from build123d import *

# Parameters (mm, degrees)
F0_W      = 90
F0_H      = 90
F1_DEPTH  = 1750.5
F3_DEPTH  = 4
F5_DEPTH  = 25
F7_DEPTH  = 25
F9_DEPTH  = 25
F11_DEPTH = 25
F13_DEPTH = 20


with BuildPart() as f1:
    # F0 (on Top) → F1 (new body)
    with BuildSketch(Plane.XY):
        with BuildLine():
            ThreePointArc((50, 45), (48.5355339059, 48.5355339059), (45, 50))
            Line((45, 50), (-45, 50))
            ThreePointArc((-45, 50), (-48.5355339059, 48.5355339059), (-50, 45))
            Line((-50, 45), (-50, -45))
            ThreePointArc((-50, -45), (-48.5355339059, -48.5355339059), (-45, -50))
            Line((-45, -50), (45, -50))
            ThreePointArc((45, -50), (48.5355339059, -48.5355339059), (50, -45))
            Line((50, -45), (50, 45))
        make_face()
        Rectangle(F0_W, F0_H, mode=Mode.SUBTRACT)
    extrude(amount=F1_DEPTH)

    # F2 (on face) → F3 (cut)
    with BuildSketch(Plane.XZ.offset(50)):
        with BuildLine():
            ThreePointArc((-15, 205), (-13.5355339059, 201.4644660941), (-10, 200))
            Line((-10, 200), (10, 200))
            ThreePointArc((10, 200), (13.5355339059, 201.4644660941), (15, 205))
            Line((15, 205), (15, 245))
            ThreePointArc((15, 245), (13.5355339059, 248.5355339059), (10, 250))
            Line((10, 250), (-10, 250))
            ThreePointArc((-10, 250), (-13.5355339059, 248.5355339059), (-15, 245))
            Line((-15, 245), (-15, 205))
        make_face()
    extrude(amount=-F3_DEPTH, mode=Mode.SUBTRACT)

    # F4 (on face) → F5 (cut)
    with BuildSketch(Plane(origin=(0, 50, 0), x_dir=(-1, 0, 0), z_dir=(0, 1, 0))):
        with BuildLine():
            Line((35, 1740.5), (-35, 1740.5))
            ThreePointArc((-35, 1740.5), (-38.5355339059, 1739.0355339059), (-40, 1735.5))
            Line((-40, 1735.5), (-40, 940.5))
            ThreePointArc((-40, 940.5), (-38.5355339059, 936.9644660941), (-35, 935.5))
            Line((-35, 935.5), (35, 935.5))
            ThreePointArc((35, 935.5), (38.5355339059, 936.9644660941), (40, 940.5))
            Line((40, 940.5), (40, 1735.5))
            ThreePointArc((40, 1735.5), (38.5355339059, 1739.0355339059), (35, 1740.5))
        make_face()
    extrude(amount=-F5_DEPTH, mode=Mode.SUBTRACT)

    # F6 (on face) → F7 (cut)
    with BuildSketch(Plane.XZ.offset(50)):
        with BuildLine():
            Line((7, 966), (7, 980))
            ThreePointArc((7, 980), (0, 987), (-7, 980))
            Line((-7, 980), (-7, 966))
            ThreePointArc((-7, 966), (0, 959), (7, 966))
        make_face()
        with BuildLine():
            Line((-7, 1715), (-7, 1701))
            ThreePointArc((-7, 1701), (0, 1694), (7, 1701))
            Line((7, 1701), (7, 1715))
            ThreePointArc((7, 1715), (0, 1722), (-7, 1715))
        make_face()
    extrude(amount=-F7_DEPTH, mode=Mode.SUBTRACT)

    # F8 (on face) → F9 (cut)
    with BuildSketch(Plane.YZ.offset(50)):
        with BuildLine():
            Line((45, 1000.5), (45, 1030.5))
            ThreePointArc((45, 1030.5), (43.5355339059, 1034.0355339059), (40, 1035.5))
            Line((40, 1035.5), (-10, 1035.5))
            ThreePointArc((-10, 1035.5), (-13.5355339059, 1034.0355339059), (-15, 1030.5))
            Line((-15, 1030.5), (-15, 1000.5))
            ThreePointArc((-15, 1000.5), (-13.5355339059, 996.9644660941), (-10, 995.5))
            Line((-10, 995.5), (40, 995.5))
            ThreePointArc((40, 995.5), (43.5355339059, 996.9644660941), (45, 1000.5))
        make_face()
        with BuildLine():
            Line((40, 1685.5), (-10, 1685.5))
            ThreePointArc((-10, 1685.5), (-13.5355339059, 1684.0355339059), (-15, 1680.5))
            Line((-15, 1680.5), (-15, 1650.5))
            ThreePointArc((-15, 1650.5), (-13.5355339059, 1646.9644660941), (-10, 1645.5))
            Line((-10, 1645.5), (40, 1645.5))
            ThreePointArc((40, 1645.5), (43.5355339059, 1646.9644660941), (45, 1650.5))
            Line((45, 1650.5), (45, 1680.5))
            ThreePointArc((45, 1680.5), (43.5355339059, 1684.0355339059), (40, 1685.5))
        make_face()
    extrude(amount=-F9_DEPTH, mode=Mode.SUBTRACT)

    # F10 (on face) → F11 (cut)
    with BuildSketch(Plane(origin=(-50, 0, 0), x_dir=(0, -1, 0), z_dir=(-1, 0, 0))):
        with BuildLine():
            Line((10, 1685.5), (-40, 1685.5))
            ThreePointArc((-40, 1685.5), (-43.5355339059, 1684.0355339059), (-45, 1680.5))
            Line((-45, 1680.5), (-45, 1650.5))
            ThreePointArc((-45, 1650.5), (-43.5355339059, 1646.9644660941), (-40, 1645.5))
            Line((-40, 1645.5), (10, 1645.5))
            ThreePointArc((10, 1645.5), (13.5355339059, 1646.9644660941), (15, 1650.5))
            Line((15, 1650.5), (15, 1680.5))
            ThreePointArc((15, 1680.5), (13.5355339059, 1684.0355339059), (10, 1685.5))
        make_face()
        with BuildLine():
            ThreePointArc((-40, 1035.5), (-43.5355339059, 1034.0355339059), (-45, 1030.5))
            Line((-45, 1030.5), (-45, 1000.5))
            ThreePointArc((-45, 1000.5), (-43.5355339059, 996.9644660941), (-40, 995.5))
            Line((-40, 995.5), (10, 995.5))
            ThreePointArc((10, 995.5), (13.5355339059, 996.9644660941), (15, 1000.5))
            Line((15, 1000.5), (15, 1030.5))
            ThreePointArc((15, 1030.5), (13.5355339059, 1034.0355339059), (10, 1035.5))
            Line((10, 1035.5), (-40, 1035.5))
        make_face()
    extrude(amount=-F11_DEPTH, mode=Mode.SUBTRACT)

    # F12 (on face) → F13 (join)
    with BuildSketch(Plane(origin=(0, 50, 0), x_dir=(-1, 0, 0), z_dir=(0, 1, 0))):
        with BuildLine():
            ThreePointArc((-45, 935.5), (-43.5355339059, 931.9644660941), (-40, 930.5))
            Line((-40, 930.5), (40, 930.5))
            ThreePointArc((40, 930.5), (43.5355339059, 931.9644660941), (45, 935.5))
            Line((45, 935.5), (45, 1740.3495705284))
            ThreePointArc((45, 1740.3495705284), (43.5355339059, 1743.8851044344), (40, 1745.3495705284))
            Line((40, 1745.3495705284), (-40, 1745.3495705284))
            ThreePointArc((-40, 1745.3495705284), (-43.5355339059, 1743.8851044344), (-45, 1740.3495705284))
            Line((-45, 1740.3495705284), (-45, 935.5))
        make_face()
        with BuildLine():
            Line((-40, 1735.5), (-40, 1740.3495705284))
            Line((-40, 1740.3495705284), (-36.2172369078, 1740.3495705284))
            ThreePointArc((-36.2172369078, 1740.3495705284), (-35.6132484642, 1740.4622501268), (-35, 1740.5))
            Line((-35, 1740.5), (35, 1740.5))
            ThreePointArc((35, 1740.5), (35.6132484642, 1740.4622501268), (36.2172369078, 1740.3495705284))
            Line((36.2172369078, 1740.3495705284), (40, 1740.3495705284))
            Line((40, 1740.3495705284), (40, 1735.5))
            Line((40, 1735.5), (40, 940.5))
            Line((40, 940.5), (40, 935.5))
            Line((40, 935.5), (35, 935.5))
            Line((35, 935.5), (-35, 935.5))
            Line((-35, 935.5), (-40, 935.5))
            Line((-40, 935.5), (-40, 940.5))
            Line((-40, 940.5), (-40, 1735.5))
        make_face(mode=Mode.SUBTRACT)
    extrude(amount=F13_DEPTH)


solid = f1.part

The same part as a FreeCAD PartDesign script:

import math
import FreeCAD as App
import Part
import Sketcher
from FreeCAD import Vector
Q = App.Units.Quantity


def add_polygon(sketch, points):
    """Adds a closed chain of lines whose ends are joined by coincident constraints."""
    first, n = sketch.GeometryCount, len(points)
    for a, b in zip(points, points[1:] + points[:1]):
        sketch.addGeometry(Part.LineSegment(App.Vector(*a, 0), App.Vector(*b, 0)), False)
    for i in range(n):
        sketch.addConstraint(Sketcher.Constraint("Coincident", first + i, 2, first + (i + 1) % n, 1))

doc = App.newDocument("Part")
body = doc.addObject("PartDesign::Body", "Body")

sketch1 = doc.addObject("Sketcher::SketchObject", "Sketch")
body.addObject(sketch1)
sketch1.AttachmentSupport = (doc.XY_Plane, [""])
sketch1.MapMode = "FlatFace"
sketch1.addGeometry(Part.ArcOfCircle(Part.Circle(Vector(45, 45, 0), Vector(0, 0, 1), 5), math.radians(0), math.radians(90)), False)
sketch1.addGeometry(Part.LineSegment(Vector(45, 50, 0), Vector(-45, 50, 0)), False)
sketch1.addGeometry(Part.ArcOfCircle(Part.Circle(Vector(-45, 45, 0), Vector(0, 0, 1), 5), math.radians(90), math.radians(180)), False)
sketch1.addGeometry(Part.LineSegment(Vector(-50, 45, 0), Vector(-50, -45, 0)), False)
sketch1.addGeometry(Part.ArcOfCircle(Part.Circle(Vector(-45, -45, 0), Vector(0, 0, 1), 5), math.radians(180), math.radians(270)), False)
sketch1.addGeometry(Part.LineSegment(Vector(-45, -50, 0), Vector(45, -50, 0)), False)
sketch1.addGeometry(Part.ArcOfCircle(Part.Circle(Vector(45, -45, 0), Vector(0, 0, 1), 5), math.radians(-90), math.radians(0)), False)
sketch1.addGeometry(Part.LineSegment(Vector(50, -45, 0), Vector(50, 45, 0)), False)
add_polygon(sketch1, [(45, -45), (-45, -45), (-45, 45), (45, 45)])
sketch1.addConstraint([
    Sketcher.Constraint("Tangent", 0, 2, 1, 1),
    Sketcher.Constraint("Tangent", 1, 2, 2, 1),
    Sketcher.Constraint("Tangent", 2, 2, 3, 1),
    Sketcher.Constraint("Tangent", 3, 2, 4, 1),
    Sketcher.Constraint("Tangent", 4, 2, 5, 1),
    Sketcher.Constraint("Tangent", 5, 2, 6, 1),
    Sketcher.Constraint("Tangent", 6, 2, 7, 1),
    Sketcher.Constraint("Tangent", 7, 2, 0, 1),
    Sketcher.Constraint("Horizontal", 1),
    Sketcher.Constraint("Vertical", 3),
    Sketcher.Constraint("Horizontal", 5),
    Sketcher.Constraint("Vertical", 7),
    Sketcher.Constraint("Horizontal", 8),
    Sketcher.Constraint("Vertical", 9),
    Sketcher.Constraint("Horizontal", 10),
    Sketcher.Constraint("Vertical", 11),
    Sketcher.Constraint("Coincident", 8, 2, 4, 3),
    Sketcher.Constraint("Coincident", 9, 2, 2, 3),
    Sketcher.Constraint("Coincident", 10, 2, 0, 3),
    Sketcher.Constraint("Equal", 4, 6),
    Sketcher.Constraint("Symmetric", 0, 3, 4, 3, -1, 1),
    Sketcher.Constraint("Equal", 10, 3),
    Sketcher.Constraint("Radius", 0, Q("5 mm")),
    Sketcher.Constraint("DistanceX", 1, 2, 1, 1, Q("90 mm")),
])
pad1 = doc.addObject("PartDesign::Pad", "Pad")
body.addObject(pad1)
pad1.Profile = sketch1
pad1.Length = 1750.5

sketch2 = doc.addObject("Sketcher::SketchObject", "Sketch001")
body.addObject(sketch2)
sketch2.AttachmentSupport = (doc.XZ_Plane, [""])
sketch2.MapMode = "FlatFace"
sketch2.AttachmentOffset = App.Placement(Vector(0, 0, 50), App.Rotation())
sketch2.addGeometry([
    Part.ArcOfCircle(Part.Circle(Vector(-10, 205, 0), Vector(0, 0, 1), 5), math.radians(180), math.radians(270)),
    Part.LineSegment(Vector(-10, 200, 0), Vector(10, 200, 0)),
    Part.ArcOfCircle(Part.Circle(Vector(10, 205, 0), Vector(0, 0, 1), 5), math.radians(-90), math.radians(0)),
    Part.LineSegment(Vector(15, 205, 0), Vector(15, 245, 0)),
    Part.ArcOfCircle(Part.Circle(Vector(10, 245, 0), Vector(0, 0, 1), 5), math.radians(0), math.radians(90)),
    Part.LineSegment(Vector(10, 250, 0), Vector(-10, 250, 0)),
    Part.ArcOfCircle(Part.Circle(Vector(-10, 245, 0), Vector(0, 0, 1), 5), math.radians(90), math.radians(180)),
    Part.LineSegment(Vector(-15, 245, 0), Vector(-15, 205, 0)),
], False)
sketch2.addConstraint([
    Sketcher.Constraint("Tangent", 0, 2, 1, 1),
    Sketcher.Constraint("Tangent", 1, 2, 2, 1),
    Sketcher.Constraint("Tangent", 2, 2, 3, 1),
    Sketcher.Constraint("Tangent", 3, 2, 4, 1),
    Sketcher.Constraint("Tangent", 4, 2, 5, 1),
    Sketcher.Constraint("Tangent", 5, 2, 6, 1),
    Sketcher.Constraint("Tangent", 6, 2, 7, 1),
    Sketcher.Constraint("Tangent", 7, 2, 0, 1),
    Sketcher.Constraint("Horizontal", 1),
    Sketcher.Constraint("Vertical", 3),
    Sketcher.Constraint("Horizontal", 5),
    Sketcher.Constraint("Vertical", 7),
    Sketcher.Constraint("Equal", 0, 2),
    Sketcher.Constraint("Equal", 2, 4),
    Sketcher.Constraint("Equal", 4, 6),
    Sketcher.Constraint("Radius", 0, Q("5 mm")),
    Sketcher.Constraint("DistanceX", 1, 1, 1, 2, Q("20 mm")),
    Sketcher.Constraint("DistanceY", 3, 1, 3, 2, Q("40 mm")),
    Sketcher.Constraint("DistanceX", 0, 3, -1, 1, Q("10 mm")),
    Sketcher.Constraint("DistanceY", -1, 1, 0, 3, Q("205 mm")),
])
pocket1 = doc.addObject("PartDesign::Pocket", "Pocket")
body.addObject(pocket1)
pocket1.Profile = sketch2
pocket1.Length = 4

sketch3 = doc.addObject("Sketcher::SketchObject", "Sketch002")
body.addObject(sketch3)
sketch3.AttachmentSupport = (doc.XZ_Plane, [""])
sketch3.MapMode = "FlatFace"
sketch3.AttachmentOffset = App.Placement(Vector(0, 0, -50), App.Rotation())
sketch3.addGeometry([
    Part.LineSegment(Vector(-35, 1740, 0), Vector(35, 1740, 0)),
    Part.ArcOfCircle(Part.Circle(Vector(35, 1736, 0), Vector(0, 0, 1), 5), math.radians(0), math.radians(90)),
    Part.LineSegment(Vector(40, 1736, 0), Vector(40, 940, 0)),
    Part.ArcOfCircle(Part.Circle(Vector(35, 940, 0), Vector(0, 0, 1), 5), math.radians(-90), math.radians(0)),
    Part.LineSegment(Vector(35, 936, 0), Vector(-35, 936, 0)),
    Part.ArcOfCircle(Part.Circle(Vector(-35, 940, 0), Vector(0, 0, 1), 5), math.radians(180), math.radians(270)),
    Part.LineSegment(Vector(-40, 940, 0), Vector(-40, 1736, 0)),
    Part.ArcOfCircle(Part.Circle(Vector(-35, 1736, 0), Vector(0, 0, 1), 5), math.radians(90), math.radians(180)),
], False)
sketch3.addConstraint([
    Sketcher.Constraint("Tangent", 0, 2, 1, 2),
    Sketcher.Constraint("Tangent", 1, 1, 2, 1),
    Sketcher.Constraint("Tangent", 2, 2, 3, 2),
    Sketcher.Constraint("Tangent", 3, 1, 4, 1),
    Sketcher.Constraint("Tangent", 4, 2, 5, 2),
    Sketcher.Constraint("Tangent", 5, 1, 6, 1),
    Sketcher.Constraint("Tangent", 6, 2, 7, 2),
    Sketcher.Constraint("Tangent", 7, 1, 0, 1),
    Sketcher.Constraint("Horizontal", 0),
    Sketcher.Constraint("Vertical", 2),
    Sketcher.Constraint("Horizontal", 4),
    Sketcher.Constraint("Vertical", 6),
    Sketcher.Constraint("Equal", 1, 3),
    Sketcher.Constraint("Equal", 3, 5),
    Sketcher.Constraint("Equal", 5, 7),
    Sketcher.Constraint("Radius", 1, Q("5 mm")),
    Sketcher.Constraint("DistanceX", 0, 1, 0, 2, Q("70 mm")),
    Sketcher.Constraint("DistanceY", 2, 2, 2, 1, Q("795 mm")),
    Sketcher.Constraint("DistanceX", -1, 1, 1, 3, Q("35 mm")),
    Sketcher.Constraint("DistanceY", -1, 1, 1, 3, Q("1735.5 mm")),
])
pocket2 = doc.addObject("PartDesign::Pocket", "Pocket001")
body.addObject(pocket2)
pocket2.Profile = sketch3
pocket2.Length = 25
pocket2.Reversed = True

sketch4 = doc.addObject("Sketcher::SketchObject", "Sketch003")
body.addObject(sketch4)
sketch4.AttachmentSupport = (doc.XZ_Plane, [""])
sketch4.MapMode = "FlatFace"
sketch4.AttachmentOffset = App.Placement(Vector(0, 0, 50), App.Rotation())
sketch4.addGeometry([
    Part.LineSegment(Vector(7, 966, 0), Vector(7, 980, 0)),
    Part.ArcOfCircle(Part.Circle(Vector(0, 980, 0), Vector(0, 0, 1), 7), math.radians(0), math.radians(180)),
    Part.LineSegment(Vector(-7, 980, 0), Vector(-7, 966, 0)),
    Part.ArcOfCircle(Part.Circle(Vector(0, 966, 0), Vector(0, 0, 1), 7), math.radians(180), math.radians(360)),
    Part.LineSegment(Vector(-7, 1715, 0), Vector(-7, 1701, 0)),
    Part.ArcOfCircle(Part.Circle(Vector(0, 1701, 0), Vector(0, 0, 1), 7), math.radians(180), math.radians(360)),
    Part.LineSegment(Vector(7, 1701, 0), Vector(7, 1715, 0)),
    Part.ArcOfCircle(Part.Circle(Vector(0, 1715, 0), Vector(0, 0, 1), 7), math.radians(0), math.radians(180)),
], False)
sketch4.addConstraint([
    Sketcher.Constraint("Tangent", 0, 2, 1, 1),
    Sketcher.Constraint("Tangent", 1, 2, 2, 1),
    Sketcher.Constraint("Tangent", 2, 2, 3, 1),
    Sketcher.Constraint("Tangent", 3, 2, 0, 1),
    Sketcher.Constraint("Tangent", 4, 2, 5, 1),
    Sketcher.Constraint("Tangent", 5, 2, 6, 1),
    Sketcher.Constraint("Tangent", 6, 2, 7, 1),
    Sketcher.Constraint("Tangent", 7, 2, 4, 1),
    Sketcher.Constraint("Vertical", 0),
    Sketcher.Constraint("Vertical", 2),
    Sketcher.Constraint("Vertical", 4),
    Sketcher.Constraint("Vertical", 6),
    Sketcher.Constraint("Equal", 3, 5),
    Sketcher.Constraint("PointOnObject", 1, 3, -2),
    Sketcher.Constraint("PointOnObject", 5, 3, -2),
    Sketcher.Constraint("Equal", 2, 4),
    Sketcher.Constraint("Radius", 1, Q("7 mm")),
    Sketcher.Constraint("DistanceY", 0, 1, 0, 2, Q("14 mm")),
    Sketcher.Constraint("DistanceY", -1, 1, 1, 3, Q("980 mm")),
    Sketcher.Constraint("DistanceY", -1, 1, 5, 3, Q("1701 mm")),
])
pocket3 = doc.addObject("PartDesign::Pocket", "Pocket002")
body.addObject(pocket3)
pocket3.Profile = sketch4
pocket3.Length = 25

sketch5 = doc.addObject("Sketcher::SketchObject", "Sketch004")
body.addObject(sketch5)
sketch5.AttachmentSupport = (doc.YZ_Plane, [""])
sketch5.MapMode = "FlatFace"
sketch5.AttachmentOffset = App.Placement(Vector(0, 0, 50), App.Rotation())
sketch5.addGeometry([
    Part.LineSegment(Vector(45, 1000, 0), Vector(45, 1030, 0)),
    Part.ArcOfCircle(Part.Circle(Vector(40, 1030, 0), Vector(0, 0, 1), 5), math.radians(0), math.radians(90)),
    Part.LineSegment(Vector(40, 1036, 0), Vector(-10, 1036, 0)),
    Part.ArcOfCircle(Part.Circle(Vector(-10, 1030, 0), Vector(0, 0, 1), 5), math.radians(90), math.radians(180)),
    Part.LineSegment(Vector(-15, 1030, 0), Vector(-15, 1000, 0)),
    Part.ArcOfCircle(Part.Circle(Vector(-10, 1000, 0), Vector(0, 0, 1), 5), math.radians(180), math.radians(270)),
    Part.LineSegment(Vector(-10, 996, 0), Vector(40, 996, 0)),
    Part.ArcOfCircle(Part.Circle(Vector(40, 1000, 0), Vector(0, 0, 1), 5), math.radians(-90), math.radians(0)),
    Part.LineSegment(Vector(40, 1686, 0), Vector(-10, 1686, 0)),
    Part.ArcOfCircle(Part.Circle(Vector(-10, 1680, 0), Vector(0, 0, 1), 5), math.radians(90), math.radians(180)),
    Part.LineSegment(Vector(-15, 1680, 0), Vector(-15, 1650, 0)),
    Part.ArcOfCircle(Part.Circle(Vector(-10, 1650, 0), Vector(0, 0, 1), 5), math.radians(180), math.radians(270)),
    Part.LineSegment(Vector(-10, 1646, 0), Vector(40, 1646, 0)),
    Part.ArcOfCircle(Part.Circle(Vector(40, 1650, 0), Vector(0, 0, 1), 5), math.radians(-90), math.radians(0)),
    Part.LineSegment(Vector(45, 1650, 0), Vector(45, 1680, 0)),
    Part.ArcOfCircle(Part.Circle(Vector(40, 1680, 0), Vector(0, 0, 1), 5), math.radians(0), math.radians(90)),
], False)
sketch5.addConstraint([
    Sketcher.Constraint("Tangent", 0, 2, 1, 1),
    Sketcher.Constraint("Tangent", 1, 2, 2, 1),
    Sketcher.Constraint("Tangent", 2, 2, 3, 1),
    Sketcher.Constraint("Tangent", 3, 2, 4, 1),
    Sketcher.Constraint("Tangent", 4, 2, 5, 1),
    Sketcher.Constraint("Tangent", 5, 2, 6, 1),
    Sketcher.Constraint("Tangent", 6, 2, 7, 1),
    Sketcher.Constraint("Tangent", 7, 2, 0, 1),
    Sketcher.Constraint("Tangent", 8, 2, 9, 1),
    Sketcher.Constraint("Tangent", 9, 2, 10, 1),
    Sketcher.Constraint("Tangent", 10, 2, 11, 1),
    Sketcher.Constraint("Tangent", 11, 2, 12, 1),
    Sketcher.Constraint("Tangent", 12, 2, 13, 1),
    Sketcher.Constraint("Tangent", 13, 2, 14, 1),
    Sketcher.Constraint("Tangent", 14, 2, 15, 1),
    Sketcher.Constraint("Tangent", 15, 2, 8, 1),
    Sketcher.Constraint("Vertical", 0),
    Sketcher.Constraint("Horizontal", 2),
    Sketcher.Constraint("Vertical", 4),
    Sketcher.Constraint("Horizontal", 6),
    Sketcher.Constraint("Horizontal", 8),
    Sketcher.Constraint("Vertical", 10),
    Sketcher.Constraint("Horizontal", 12),
    Sketcher.Constraint("Vertical", 14),
    Sketcher.Constraint("Equal", 1, 3),
    Sketcher.Constraint("Equal", 3, 5),
    Sketcher.Constraint("Equal", 5, 7),
    Sketcher.Constraint("Equal", 7, 9),
    Sketcher.Constraint("Equal", 9, 11),
    Sketcher.Constraint("Equal", 11, 13),
    Sketcher.Constraint("Equal", 13, 15),
    Sketcher.Constraint("Vertical", 5, 3, 9, 3),
    Sketcher.Constraint("Vertical", 7, 3, 13, 3),
    Sketcher.Constraint("Equal", 4, 10),
    Sketcher.Constraint("Radius", 1, Q("5 mm")),
    Sketcher.Constraint("DistanceX", 2, 2, 2, 1, Q("50 mm")),
    Sketcher.Constraint("DistanceY", 0, 1, 0, 2, Q("30 mm")),
    Sketcher.Constraint("DistanceX", -1, 1, 1, 3, Q("40 mm")),
    Sketcher.Constraint("DistanceY", 3, 3, 9, 3, Q("650 mm")),
    Sketcher.Constraint("DistanceY", -1, 1, 1, 3, Q("1030.5 mm")),
])
pocket4 = doc.addObject("PartDesign::Pocket", "Pocket003")
body.addObject(pocket4)
pocket4.Profile = sketch5
pocket4.Length = 25

sketch6 = doc.addObject("Sketcher::SketchObject", "Sketch005")
body.addObject(sketch6)
sketch6.AttachmentSupport = (doc.YZ_Plane, [""])
sketch6.MapMode = "FlatFace"
sketch6.AttachmentOffset = App.Placement(Vector(0, 0, -50), App.Rotation())
sketch6.addGeometry([
    Part.LineSegment(Vector(-10, 1686, 0), Vector(40, 1686, 0)),
    Part.ArcOfCircle(Part.Circle(Vector(40, 1680, 0), Vector(0, 0, 1), 5), math.radians(0), math.radians(90)),
    Part.LineSegment(Vector(45, 1680, 0), Vector(45, 1650, 0)),
    Part.ArcOfCircle(Part.Circle(Vector(40, 1650, 0), Vector(0, 0, 1), 5), math.radians(-90), math.radians(0)),
    Part.LineSegment(Vector(40, 1646, 0), Vector(-10, 1646, 0)),
    Part.ArcOfCircle(Part.Circle(Vector(-10, 1650, 0), Vector(0, 0, 1), 5), math.radians(180), math.radians(270)),
    Part.LineSegment(Vector(-15, 1650, 0), Vector(-15, 1680, 0)),
    Part.ArcOfCircle(Part.Circle(Vector(-10, 1680, 0), Vector(0, 0, 1), 5), math.radians(90), math.radians(180)),
    Part.ArcOfCircle(Part.Circle(Vector(40, 1030, 0), Vector(0, 0, 1), 5), math.radians(0), math.radians(90)),
    Part.LineSegment(Vector(45, 1030, 0), Vector(45, 1000, 0)),
    Part.ArcOfCircle(Part.Circle(Vector(40, 1000, 0), Vector(0, 0, 1), 5), math.radians(-90), math.radians(0)),
    Part.LineSegment(Vector(40, 996, 0), Vector(-10, 996, 0)),
    Part.ArcOfCircle(Part.Circle(Vector(-10, 1000, 0), Vector(0, 0, 1), 5), math.radians(180), math.radians(270)),
    Part.LineSegment(Vector(-15, 1000, 0), Vector(-15, 1030, 0)),
    Part.ArcOfCircle(Part.Circle(Vector(-10, 1030, 0), Vector(0, 0, 1), 5), math.radians(90), math.radians(180)),
    Part.LineSegment(Vector(-10, 1036, 0), Vector(40, 1036, 0)),
], False)
sketch6.addConstraint([
    Sketcher.Constraint("Tangent", 0, 2, 1, 2),
    Sketcher.Constraint("Tangent", 1, 1, 2, 1),
    Sketcher.Constraint("Tangent", 2, 2, 3, 2),
    Sketcher.Constraint("Tangent", 3, 1, 4, 1),
    Sketcher.Constraint("Tangent", 4, 2, 5, 2),
    Sketcher.Constraint("Tangent", 5, 1, 6, 1),
    Sketcher.Constraint("Tangent", 6, 2, 7, 2),
    Sketcher.Constraint("Tangent", 7, 1, 0, 1),
    Sketcher.Constraint("Tangent", 8, 1, 9, 1),
    Sketcher.Constraint("Tangent", 9, 2, 10, 2),
    Sketcher.Constraint("Tangent", 10, 1, 11, 1),
    Sketcher.Constraint("Tangent", 11, 2, 12, 2),
    Sketcher.Constraint("Tangent", 12, 1, 13, 1),
    Sketcher.Constraint("Tangent", 13, 2, 14, 2),
    Sketcher.Constraint("Tangent", 14, 1, 15, 1),
    Sketcher.Constraint("Tangent", 15, 2, 8, 2),
    Sketcher.Constraint("Horizontal", 0),
    Sketcher.Constraint("Vertical", 2),
    Sketcher.Constraint("Horizontal", 4),
    Sketcher.Constraint("Vertical", 6),
    Sketcher.Constraint("Vertical", 9),
    Sketcher.Constraint("Horizontal", 11),
    Sketcher.Constraint("Vertical", 13),
    Sketcher.Constraint("Horizontal", 15),
    Sketcher.Constraint("Equal", 1, 3),
    Sketcher.Constraint("Equal", 3, 5),
    Sketcher.Constraint("Equal", 5, 7),
    Sketcher.Constraint("Equal", 7, 8),
    Sketcher.Constraint("Equal", 8, 10),
    Sketcher.Constraint("Equal", 10, 12),
    Sketcher.Constraint("Equal", 12, 14),
    Sketcher.Constraint("Vertical", 3, 3, 8, 3),
    Sketcher.Constraint("Vertical", 7, 3, 12, 3),
    Sketcher.Constraint("Equal", 6, 9),
    Sketcher.Constraint("Radius", 1, Q("5 mm")),
    Sketcher.Constraint("DistanceX", 0, 1, 0, 2, Q("50 mm")),
    Sketcher.Constraint("DistanceY", 2, 2, 2, 1, Q("30 mm")),
    Sketcher.Constraint("DistanceX", -1, 1, 1, 3, Q("40 mm")),
    Sketcher.Constraint("DistanceY", 8, 3, 3, 3, Q("620 mm")),
    Sketcher.Constraint("DistanceY", -1, 1, 1, 3, Q("1680.5 mm")),
])
pocket5 = doc.addObject("PartDesign::Pocket", "Pocket004")
body.addObject(pocket5)
pocket5.Profile = sketch6
pocket5.Length = 25
pocket5.Reversed = True

sketch7 = doc.addObject("Sketcher::SketchObject", "Sketch006")
body.addObject(sketch7)
sketch7.AttachmentSupport = (doc.XZ_Plane, [""])
sketch7.MapMode = "FlatFace"
sketch7.AttachmentOffset = App.Placement(Vector(0, 0, -50), App.Rotation())
sketch7.addGeometry([
    Part.ArcOfCircle(Part.Circle(Vector(40, 935.5, 0), Vector(0, 0, 1), 5), math.radians(-90), math.radians(0)),
    Part.LineSegment(Vector(40, 930.5, 0), Vector(-40, 930.5, 0)),
    Part.ArcOfCircle(Part.Circle(Vector(-40, 935.5, 0), Vector(0, 0, 1), 5), math.radians(180), math.radians(270)),
    Part.LineSegment(Vector(-45, 935.5, 0), Vector(-45, 1740.3, 0)),
    Part.ArcOfCircle(Part.Circle(Vector(-40, 1740.3, 0), Vector(0, 0, 1), 5), math.radians(90), math.radians(180)),
    Part.LineSegment(Vector(-40, 1745.3, 0), Vector(40, 1745.3, 0)),
    Part.ArcOfCircle(Part.Circle(Vector(40, 1740.3, 0), Vector(0, 0, 1), 5), math.radians(0), math.radians(90)),
    Part.LineSegment(Vector(45, 1740.3, 0), Vector(45, 935.5, 0)),
    Part.LineSegment(Vector(40, 935.5, 0), Vector(40, 1740.3, 0)),
    Part.LineSegment(Vector(40, 1740.3, 0), Vector(36.2, 1740.3, 0)),
    Part.ArcOfCircle(Part.Circle(Vector(35, 1735.5, 0), Vector(0, 0, 1), 5), math.radians(75.91), math.radians(90)),
    Part.LineSegment(Vector(35, 1740.5, 0), Vector(-35, 1740.5, 0)),
    Part.ArcOfCircle(Part.Circle(Vector(-35, 1735.5, 0), Vector(0, 0, 1), 5), math.radians(90), math.radians(104.09)),
    Part.LineSegment(Vector(-36.2, 1740.3, 0), Vector(-40, 1740.3, 0)),
    Part.LineSegment(Vector(-40, 1740.3, 0), Vector(-40, 935.5, 0)),
    Part.LineSegment(Vector(-40, 935.5, 0), Vector(40, 935.5, 0)),
], False)
sketch7.addConstraint([
    Sketcher.Constraint("Tangent", 0, 1, 1, 1),
    Sketcher.Constraint("Tangent", 1, 2, 2, 2),
    Sketcher.Constraint("Tangent", 2, 1, 3, 1),
    Sketcher.Constraint("Tangent", 3, 2, 4, 2),
    Sketcher.Constraint("Tangent", 4, 1, 5, 1),
    Sketcher.Constraint("Tangent", 5, 2, 6, 2),
    Sketcher.Constraint("Tangent", 6, 1, 7, 1),
    Sketcher.Constraint("Tangent", 7, 2, 0, 2),
    Sketcher.Constraint("Coincident", 8, 2, 9, 1),
    Sketcher.Constraint("Coincident", 9, 2, 10, 1),
    Sketcher.Constraint("Tangent", 10, 2, 11, 1),
    Sketcher.Constraint("Tangent", 11, 2, 12, 1),
    Sketcher.Constraint("Coincident", 12, 2, 13, 1),
    Sketcher.Constraint("Coincident", 13, 2, 14, 1),
    Sketcher.Constraint("Coincident", 14, 2, 15, 1),
    Sketcher.Constraint("Coincident", 15, 2, 8, 1),
    Sketcher.Constraint("Horizontal", 1),
    Sketcher.Constraint("Vertical", 3),
    Sketcher.Constraint("Horizontal", 5),
    Sketcher.Constraint("Vertical", 7),
    Sketcher.Constraint("Vertical", 8),
    Sketcher.Constraint("Horizontal", 9),
    Sketcher.Constraint("Horizontal", 11),
    Sketcher.Constraint("Horizontal", 13),
    Sketcher.Constraint("Vertical", 14),
    Sketcher.Constraint("Horizontal", 15),
    Sketcher.Constraint("Coincident", 8, 2, 6, 3),
    Sketcher.Constraint("Coincident", 13, 2, 4, 3),
    Sketcher.Constraint("Coincident", 14, 2, 2, 3),
    Sketcher.Constraint("Coincident", 15, 2, 0, 3),
    Sketcher.Constraint("Equal", 6, 10),
    Sketcher.Constraint("Equal", 10, 12),
    Sketcher.Constraint("Equal", 9, 13),
    Sketcher.Constraint("Radius", 0, Q("5 mm")),
    Sketcher.Constraint("DistanceX", 1, 2, 1, 1, Q("80 mm")),
    Sketcher.Constraint("DistanceX", 11, 2, 11, 1, Q("70 mm")),
    Sketcher.Constraint("DistanceX", -1, 1, 0, 3, Q("40 mm")),
    Sketcher.Constraint("DistanceY", 0, 3, 10, 3, Q("800 mm")),
    Sketcher.Constraint("DistanceY", -1, 1, 0, 3, Q("935.5 mm")),
    Sketcher.Constraint("DistanceY", 3, 1, 3, 2, Q("804.849571 mm")),
])
pad2 = doc.addObject("PartDesign::Pad", "Pad001")
body.addObject(pad2)
pad2.Profile = sketch7
pad2.Length = 20
pad2.Reversed = True

doc.recompute()
